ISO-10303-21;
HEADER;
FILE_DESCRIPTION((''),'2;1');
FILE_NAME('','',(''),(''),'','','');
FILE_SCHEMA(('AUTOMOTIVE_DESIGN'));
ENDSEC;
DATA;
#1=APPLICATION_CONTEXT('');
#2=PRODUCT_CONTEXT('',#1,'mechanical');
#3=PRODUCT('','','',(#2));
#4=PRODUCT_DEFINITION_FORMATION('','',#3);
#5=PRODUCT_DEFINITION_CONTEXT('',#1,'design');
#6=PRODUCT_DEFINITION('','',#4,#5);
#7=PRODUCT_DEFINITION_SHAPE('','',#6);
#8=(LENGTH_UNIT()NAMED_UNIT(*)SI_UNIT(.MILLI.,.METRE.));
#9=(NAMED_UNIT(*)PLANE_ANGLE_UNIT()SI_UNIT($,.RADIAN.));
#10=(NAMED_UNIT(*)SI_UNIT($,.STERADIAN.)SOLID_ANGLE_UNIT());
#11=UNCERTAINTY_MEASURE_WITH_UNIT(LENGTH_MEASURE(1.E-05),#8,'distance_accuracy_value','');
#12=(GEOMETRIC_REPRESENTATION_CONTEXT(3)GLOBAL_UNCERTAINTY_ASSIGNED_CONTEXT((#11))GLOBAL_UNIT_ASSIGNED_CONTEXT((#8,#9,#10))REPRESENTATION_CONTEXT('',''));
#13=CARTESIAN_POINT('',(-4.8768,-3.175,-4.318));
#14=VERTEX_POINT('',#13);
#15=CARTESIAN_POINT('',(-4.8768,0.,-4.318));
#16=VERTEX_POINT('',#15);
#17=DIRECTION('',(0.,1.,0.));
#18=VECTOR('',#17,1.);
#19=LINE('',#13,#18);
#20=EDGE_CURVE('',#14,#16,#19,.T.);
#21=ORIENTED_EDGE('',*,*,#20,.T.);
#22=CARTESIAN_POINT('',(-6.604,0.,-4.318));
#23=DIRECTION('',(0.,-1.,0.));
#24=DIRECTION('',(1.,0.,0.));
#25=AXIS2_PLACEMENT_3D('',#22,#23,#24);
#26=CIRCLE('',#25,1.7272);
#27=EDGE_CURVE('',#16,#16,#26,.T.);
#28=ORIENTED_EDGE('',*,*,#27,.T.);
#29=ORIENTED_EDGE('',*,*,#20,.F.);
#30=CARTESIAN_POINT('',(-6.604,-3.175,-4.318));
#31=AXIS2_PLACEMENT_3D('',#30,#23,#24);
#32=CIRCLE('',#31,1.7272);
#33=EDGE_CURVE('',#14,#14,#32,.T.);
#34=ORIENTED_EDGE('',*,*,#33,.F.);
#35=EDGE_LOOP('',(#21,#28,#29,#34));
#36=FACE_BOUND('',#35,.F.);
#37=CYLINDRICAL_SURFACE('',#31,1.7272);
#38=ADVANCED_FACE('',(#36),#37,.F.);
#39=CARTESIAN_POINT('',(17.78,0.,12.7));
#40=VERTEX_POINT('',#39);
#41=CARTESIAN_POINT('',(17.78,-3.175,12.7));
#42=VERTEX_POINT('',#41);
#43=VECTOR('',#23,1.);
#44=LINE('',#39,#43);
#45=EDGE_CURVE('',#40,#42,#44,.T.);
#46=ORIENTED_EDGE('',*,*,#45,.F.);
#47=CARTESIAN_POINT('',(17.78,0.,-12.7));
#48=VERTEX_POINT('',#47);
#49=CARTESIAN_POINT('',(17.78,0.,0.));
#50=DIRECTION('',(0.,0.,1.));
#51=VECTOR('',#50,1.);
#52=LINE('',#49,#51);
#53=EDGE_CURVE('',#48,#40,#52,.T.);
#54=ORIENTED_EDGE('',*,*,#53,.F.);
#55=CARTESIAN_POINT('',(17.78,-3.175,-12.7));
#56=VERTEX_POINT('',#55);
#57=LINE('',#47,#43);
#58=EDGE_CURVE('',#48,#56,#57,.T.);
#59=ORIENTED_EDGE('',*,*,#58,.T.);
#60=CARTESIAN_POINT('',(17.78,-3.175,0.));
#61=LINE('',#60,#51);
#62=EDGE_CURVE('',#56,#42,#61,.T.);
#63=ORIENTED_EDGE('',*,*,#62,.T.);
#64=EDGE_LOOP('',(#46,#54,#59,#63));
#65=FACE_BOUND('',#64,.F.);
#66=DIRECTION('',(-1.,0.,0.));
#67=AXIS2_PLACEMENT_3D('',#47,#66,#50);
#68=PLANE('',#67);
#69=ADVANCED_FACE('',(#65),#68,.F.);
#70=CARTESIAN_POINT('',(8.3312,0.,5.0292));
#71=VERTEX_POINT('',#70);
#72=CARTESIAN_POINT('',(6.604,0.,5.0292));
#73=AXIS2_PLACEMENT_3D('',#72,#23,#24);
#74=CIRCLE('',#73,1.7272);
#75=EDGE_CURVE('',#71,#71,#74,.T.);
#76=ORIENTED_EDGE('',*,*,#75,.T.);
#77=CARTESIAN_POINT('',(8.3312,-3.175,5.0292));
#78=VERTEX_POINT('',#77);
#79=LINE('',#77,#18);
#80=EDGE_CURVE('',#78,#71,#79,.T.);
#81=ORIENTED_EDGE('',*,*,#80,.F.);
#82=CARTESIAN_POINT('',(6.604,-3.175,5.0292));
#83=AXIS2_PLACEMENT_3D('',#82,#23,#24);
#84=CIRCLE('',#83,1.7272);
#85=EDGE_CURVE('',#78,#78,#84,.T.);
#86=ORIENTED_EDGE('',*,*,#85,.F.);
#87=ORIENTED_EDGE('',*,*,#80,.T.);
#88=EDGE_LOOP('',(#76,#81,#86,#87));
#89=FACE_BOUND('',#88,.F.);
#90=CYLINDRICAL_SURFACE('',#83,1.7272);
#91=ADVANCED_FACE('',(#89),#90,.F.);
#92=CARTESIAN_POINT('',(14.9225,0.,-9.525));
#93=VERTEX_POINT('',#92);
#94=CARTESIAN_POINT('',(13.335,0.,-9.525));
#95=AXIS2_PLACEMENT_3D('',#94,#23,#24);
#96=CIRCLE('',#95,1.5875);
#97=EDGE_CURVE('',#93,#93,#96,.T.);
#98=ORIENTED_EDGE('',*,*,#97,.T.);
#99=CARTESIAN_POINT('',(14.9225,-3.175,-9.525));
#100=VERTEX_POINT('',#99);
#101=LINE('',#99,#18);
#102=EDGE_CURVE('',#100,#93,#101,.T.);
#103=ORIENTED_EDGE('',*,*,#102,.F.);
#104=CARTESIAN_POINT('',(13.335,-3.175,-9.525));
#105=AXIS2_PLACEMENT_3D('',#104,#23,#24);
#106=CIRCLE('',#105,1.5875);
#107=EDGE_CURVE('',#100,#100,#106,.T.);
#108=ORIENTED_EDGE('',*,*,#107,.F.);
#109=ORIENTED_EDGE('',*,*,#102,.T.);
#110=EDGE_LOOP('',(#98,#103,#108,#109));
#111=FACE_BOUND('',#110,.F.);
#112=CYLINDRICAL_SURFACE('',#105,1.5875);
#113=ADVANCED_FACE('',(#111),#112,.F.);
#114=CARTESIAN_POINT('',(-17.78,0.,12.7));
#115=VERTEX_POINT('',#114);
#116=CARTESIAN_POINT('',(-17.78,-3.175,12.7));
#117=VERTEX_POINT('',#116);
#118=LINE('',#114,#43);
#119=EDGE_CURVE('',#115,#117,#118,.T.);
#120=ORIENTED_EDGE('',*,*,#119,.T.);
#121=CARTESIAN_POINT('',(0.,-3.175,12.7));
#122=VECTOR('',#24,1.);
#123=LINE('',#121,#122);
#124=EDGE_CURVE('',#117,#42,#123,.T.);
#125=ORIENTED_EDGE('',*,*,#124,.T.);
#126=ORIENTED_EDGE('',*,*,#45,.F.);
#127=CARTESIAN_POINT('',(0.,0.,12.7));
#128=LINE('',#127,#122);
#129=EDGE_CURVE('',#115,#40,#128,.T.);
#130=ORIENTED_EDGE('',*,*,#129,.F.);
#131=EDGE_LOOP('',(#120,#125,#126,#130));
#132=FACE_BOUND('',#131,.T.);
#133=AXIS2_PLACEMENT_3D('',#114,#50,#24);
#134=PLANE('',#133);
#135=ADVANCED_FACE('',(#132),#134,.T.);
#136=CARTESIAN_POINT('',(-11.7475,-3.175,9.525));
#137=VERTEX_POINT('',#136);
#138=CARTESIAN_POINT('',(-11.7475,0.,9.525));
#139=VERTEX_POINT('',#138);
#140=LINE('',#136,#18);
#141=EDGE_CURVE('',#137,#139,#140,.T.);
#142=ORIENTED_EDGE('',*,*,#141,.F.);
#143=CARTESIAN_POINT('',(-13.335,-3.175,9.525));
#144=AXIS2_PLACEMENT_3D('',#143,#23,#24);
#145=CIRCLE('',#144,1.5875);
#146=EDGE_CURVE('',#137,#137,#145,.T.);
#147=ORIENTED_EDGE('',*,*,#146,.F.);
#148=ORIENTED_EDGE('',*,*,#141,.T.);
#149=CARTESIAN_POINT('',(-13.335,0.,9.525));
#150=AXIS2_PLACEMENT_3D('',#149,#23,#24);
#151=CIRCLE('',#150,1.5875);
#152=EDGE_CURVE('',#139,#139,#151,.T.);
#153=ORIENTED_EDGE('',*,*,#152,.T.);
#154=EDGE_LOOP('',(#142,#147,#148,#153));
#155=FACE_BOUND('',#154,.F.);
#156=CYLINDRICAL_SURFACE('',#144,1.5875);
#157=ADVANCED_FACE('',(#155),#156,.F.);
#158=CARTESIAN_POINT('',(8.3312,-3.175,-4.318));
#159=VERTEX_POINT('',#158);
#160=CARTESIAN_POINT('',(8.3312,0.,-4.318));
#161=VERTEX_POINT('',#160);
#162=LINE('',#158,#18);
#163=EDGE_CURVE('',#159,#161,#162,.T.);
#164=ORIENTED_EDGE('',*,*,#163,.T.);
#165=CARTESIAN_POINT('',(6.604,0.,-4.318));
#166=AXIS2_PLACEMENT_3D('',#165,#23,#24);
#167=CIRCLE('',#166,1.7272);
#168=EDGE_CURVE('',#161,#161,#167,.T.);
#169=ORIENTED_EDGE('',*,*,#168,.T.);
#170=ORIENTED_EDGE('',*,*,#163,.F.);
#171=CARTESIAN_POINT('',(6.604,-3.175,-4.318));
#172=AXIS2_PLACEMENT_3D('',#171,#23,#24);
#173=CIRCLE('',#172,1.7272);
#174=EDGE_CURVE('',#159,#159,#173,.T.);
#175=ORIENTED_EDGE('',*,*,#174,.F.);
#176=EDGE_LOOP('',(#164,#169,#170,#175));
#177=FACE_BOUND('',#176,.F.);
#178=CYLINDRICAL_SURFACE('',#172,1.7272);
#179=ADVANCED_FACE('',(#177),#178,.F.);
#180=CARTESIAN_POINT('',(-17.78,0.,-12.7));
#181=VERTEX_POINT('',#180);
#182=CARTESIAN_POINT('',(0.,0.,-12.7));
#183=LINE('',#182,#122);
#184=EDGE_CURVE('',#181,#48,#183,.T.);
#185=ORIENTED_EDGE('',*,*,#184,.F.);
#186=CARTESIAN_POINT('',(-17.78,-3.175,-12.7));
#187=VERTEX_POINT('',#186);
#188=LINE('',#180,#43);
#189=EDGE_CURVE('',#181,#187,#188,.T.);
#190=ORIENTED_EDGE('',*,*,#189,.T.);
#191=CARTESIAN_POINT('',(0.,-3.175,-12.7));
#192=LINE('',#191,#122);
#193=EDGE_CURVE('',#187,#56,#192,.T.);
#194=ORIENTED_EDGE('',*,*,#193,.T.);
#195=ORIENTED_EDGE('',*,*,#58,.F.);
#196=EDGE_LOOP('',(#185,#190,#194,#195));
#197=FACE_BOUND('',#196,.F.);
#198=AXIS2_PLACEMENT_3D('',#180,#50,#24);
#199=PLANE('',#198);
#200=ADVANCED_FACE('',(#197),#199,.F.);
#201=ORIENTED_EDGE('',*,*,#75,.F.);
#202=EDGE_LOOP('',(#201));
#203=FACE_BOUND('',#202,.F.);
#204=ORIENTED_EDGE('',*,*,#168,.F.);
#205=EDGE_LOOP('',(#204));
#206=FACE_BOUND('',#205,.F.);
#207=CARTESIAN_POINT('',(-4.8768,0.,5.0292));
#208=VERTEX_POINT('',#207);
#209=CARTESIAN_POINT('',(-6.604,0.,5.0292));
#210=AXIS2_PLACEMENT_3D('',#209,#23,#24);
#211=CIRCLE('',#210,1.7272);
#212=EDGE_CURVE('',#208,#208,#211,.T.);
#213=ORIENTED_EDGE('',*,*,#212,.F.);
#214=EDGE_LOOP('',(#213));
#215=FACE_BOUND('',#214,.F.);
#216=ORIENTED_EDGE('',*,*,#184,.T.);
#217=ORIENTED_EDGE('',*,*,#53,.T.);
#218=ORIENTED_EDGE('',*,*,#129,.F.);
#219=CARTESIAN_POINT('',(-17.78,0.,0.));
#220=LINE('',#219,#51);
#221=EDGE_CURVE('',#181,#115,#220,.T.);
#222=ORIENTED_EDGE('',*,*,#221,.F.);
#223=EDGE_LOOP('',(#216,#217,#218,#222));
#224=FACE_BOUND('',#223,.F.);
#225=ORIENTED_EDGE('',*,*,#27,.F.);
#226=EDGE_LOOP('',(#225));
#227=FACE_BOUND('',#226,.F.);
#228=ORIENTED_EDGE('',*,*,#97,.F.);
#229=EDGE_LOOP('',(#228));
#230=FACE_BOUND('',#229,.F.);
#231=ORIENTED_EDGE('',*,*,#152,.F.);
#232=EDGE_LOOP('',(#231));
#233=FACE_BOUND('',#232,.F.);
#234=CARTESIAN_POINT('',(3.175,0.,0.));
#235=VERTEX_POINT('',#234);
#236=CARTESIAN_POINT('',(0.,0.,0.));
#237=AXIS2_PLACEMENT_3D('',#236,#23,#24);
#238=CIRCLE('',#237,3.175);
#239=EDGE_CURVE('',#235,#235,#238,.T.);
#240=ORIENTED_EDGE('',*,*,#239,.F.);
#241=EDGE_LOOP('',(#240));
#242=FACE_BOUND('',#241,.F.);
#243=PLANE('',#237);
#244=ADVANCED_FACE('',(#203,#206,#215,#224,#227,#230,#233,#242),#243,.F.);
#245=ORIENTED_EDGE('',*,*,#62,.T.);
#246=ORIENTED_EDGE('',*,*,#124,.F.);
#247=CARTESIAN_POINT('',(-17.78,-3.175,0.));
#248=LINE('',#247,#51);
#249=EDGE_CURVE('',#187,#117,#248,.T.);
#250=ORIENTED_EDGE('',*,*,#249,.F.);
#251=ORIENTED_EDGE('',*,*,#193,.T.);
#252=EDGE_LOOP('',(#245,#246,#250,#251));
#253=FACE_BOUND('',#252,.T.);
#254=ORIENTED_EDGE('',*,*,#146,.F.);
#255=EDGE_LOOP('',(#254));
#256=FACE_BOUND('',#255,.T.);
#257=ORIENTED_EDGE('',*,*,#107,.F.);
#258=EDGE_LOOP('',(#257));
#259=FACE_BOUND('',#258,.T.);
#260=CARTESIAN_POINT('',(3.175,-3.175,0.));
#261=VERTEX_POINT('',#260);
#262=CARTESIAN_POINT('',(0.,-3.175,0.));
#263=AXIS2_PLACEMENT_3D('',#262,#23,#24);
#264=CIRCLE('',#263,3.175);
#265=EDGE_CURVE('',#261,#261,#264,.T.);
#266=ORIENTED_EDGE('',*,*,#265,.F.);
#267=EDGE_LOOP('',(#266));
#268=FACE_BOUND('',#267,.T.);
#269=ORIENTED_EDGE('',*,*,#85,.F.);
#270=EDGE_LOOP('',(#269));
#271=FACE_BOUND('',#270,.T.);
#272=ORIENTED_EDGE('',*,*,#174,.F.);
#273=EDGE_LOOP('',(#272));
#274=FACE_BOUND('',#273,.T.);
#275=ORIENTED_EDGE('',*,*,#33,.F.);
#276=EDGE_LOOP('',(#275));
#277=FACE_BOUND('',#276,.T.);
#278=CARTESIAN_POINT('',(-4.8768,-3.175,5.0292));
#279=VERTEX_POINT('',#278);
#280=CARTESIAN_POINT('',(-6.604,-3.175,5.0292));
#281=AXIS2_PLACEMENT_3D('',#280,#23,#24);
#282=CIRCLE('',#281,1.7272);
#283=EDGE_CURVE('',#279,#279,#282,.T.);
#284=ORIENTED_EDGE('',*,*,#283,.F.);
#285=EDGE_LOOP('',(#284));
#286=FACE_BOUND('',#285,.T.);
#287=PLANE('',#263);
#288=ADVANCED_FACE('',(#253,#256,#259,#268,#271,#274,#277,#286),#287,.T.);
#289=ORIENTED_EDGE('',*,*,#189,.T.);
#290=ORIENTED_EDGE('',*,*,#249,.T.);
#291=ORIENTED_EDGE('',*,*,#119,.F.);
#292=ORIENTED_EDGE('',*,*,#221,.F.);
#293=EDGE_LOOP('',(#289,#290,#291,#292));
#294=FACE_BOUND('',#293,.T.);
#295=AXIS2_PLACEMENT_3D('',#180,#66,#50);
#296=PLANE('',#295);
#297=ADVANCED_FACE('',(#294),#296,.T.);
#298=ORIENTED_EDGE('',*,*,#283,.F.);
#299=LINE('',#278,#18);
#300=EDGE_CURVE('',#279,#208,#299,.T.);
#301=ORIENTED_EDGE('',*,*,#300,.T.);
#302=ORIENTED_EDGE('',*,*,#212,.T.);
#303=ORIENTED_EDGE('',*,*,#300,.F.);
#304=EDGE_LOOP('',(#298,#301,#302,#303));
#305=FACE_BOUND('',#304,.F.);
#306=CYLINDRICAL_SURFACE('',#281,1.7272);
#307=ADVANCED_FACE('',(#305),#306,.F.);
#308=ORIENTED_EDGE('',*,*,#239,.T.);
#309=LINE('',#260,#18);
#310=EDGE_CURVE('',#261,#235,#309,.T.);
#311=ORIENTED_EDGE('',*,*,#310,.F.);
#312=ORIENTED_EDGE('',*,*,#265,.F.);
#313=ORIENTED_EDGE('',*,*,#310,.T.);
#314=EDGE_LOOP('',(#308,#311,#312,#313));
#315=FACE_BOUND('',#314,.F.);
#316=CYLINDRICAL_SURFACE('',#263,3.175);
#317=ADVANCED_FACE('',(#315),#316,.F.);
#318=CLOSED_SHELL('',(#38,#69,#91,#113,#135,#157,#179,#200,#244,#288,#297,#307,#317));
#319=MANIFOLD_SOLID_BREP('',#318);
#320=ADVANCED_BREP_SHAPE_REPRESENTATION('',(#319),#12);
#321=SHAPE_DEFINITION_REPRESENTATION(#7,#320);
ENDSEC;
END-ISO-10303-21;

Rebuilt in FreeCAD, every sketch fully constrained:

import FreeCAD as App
import Part
import Sketcher

V = App.Vector
Q = App.Units.Quantity

doc = App.newDocument("Part")
params = doc.addObject("Spreadsheet::Sheet", "Params")
for row, (alias, value) in enumerate([
    ("sketch1_height", "1 in"),
    ("sketch1_width", "1.4 in"),
    ("pad1_length", "0.125 in"),
    ("sketch2_diameter", "0.25 in"),
    ("sketch2_diameter2", "0.136 in"),
    ("sketch3_diameter", "0.125 in"),
], start=1):
    params.set(f"A{row}", alias)
    params.set(f"B{row}", "=" + value)
    params.setAlias(f"B{row}", alias)

body = doc.addObject("PartDesign::Body", "Body")

# Sketch on XZ plane
sketch1 = doc.addObject("Sketcher::SketchObject", "Sketch")
body.addObject(sketch1)
sketch1.AttachmentSupport = (doc.XZ_Plane, [""])
sketch1.MapMode = "FlatFace"
sketch1.addGeometry(Part.LineSegment(V(-18, 13, 0), V(-18, -13, 0)), False)
sketch1.addGeometry(Part.LineSegment(V(-18, -13, 0), V(18, -13, 0)), False)
sketch1.addGeometry(Part.LineSegment(V(18, -13, 0), V(18, 13, 0)), False)
sketch1.addGeometry(Part.LineSegment(V(18, 13, 0), V(-18, 13, 0)), False)
sketch1.addConstraint(Sketcher.Constraint("Coincident", 0, 2, 1, 1))
sketch1.addConstraint(Sketcher.Constraint("Coincident", 1, 2, 2, 1))
sketch1.addConstraint(Sketcher.Constraint("Coincident", 2, 2, 3, 1))
sketch1.addConstraint(Sketcher.Constraint("Coincident", 3, 2, 0, 1))
sketch1.addConstraint(Sketcher.Constraint("Vertical", 0))
sketch1.addConstraint(Sketcher.Constraint("Horizontal", 1))
sketch1.addConstraint(Sketcher.Constraint("Vertical", 2))
sketch1.addConstraint(Sketcher.Constraint("Horizontal", 3))
sketch1.addConstraint(Sketcher.Constraint("Symmetric", 0, 2, 2, 2, -1, 1))
sketch1.addConstraint(Sketcher.Constraint("DistanceY", 0, 2, 0, 1, Q("1 in")))
sketch1.addConstraint(Sketcher.Constraint("DistanceX", 1, 1, 1, 2, Q("1.4 in")))
sketch1.setExpression("Constraints[9]", "Params.sketch1_height")
sketch1.setExpression("Constraints[10]", "Params.sketch1_width")
pad1 = doc.addObject("PartDesign::Pad", "Pad")
body.addObject(pad1)
pad1.Profile = sketch1
pad1.setExpression("Length", "Params.pad1_length")

# Sketch on XZ plane
sketch2 = doc.addObject("Sketcher::SketchObject", "Sketch001")
body.addObject(sketch2)
sketch2.AttachmentSupport = (doc.XZ_Plane, [""])
sketch2.MapMode = "FlatFace"
sketch2.AttachmentOffset = App.Placement(V(0, 0, 0.125 * 25.4), App.Rotation())
sketch2.addGeometry(Part.Circle(V(0, 0, 0), V(0, 0, 1), 3.2), False)
sketch2.addGeometry(Part.Circle(V(6.6, 5, 0), V(0, 0, 1), 1.7), False)
sketch2.addGeometry(Part.Circle(V(6.6, -4.3, 0), V(0, 0, 1), 1.7), False)
sketch2.addGeometry(Part.Circle(V(-6.6, -4.3, 0), V(0, 0, 1), 1.7), False)
sketch2.addGeometry(Part.Circle(V(-6.6, 5, 0), V(0, 0, 1), 1.7), False)
sketch2.addConstraint(Sketcher.Constraint("Coincident", 0, 3, -1, 1))
sketch2.addConstraint(Sketcher.Constraint("Equal", 1, 2))
sketch2.addConstraint(Sketcher.Constraint("Equal", 2, 3))
sketch2.addConstraint(Sketcher.Constraint("Equal", 3, 4))
sketch2.addConstraint(Sketcher.Constraint("Symmetric", 2, 3, 3, 3, -2))
sketch2.addConstraint(Sketcher.Constraint("Symmetric", 1, 3, 4, 3, -2))
sketch2.addConstraint(Sketcher.Constraint("Vertical", 1, 3, 2, 3))
sketch2.addConstraint(Sketcher.Constraint("Diameter", 0, Q("0.25 in")))
sketch2.addConstraint(Sketcher.Constraint("Diameter", 1, Q("0.136 in")))
sketch2.addConstraint(Sketcher.Constraint("DistanceX", -1, 1, 1, 3, Q("0.26 in")))
sketch2.addConstraint(Sketcher.Constraint("DistanceY", 2, 3, -1, 1, Q("0.17 in")))
sketch2.addConstraint(Sketcher.Constraint("DistanceY", -1, 1, 1, 3, Q("0.198 in")))
sketch2.setExpression("Constraints[7]", "Params.sketch2_diameter")
sketch2.setExpression("Constraints[8]", "Params.sketch2_diameter2")
pocket1 = doc.addObject("PartDesign::Pocket", "Pocket")
body.addObject(pocket1)
pocket1.Profile = sketch2
pocket1.Type = "ThroughAll"

# Sketch on XZ plane
sketch3 = doc.addObject("Sketcher::SketchObject", "Sketch002")
body.addObject(sketch3)
sketch3.AttachmentSupport = (doc.XZ_Plane, [""])
sketch3.MapMode = "FlatFace"
sketch3.AttachmentOffset = App.Placement(V(0, 0, 0.125 * 25.4), App.Rotation())
sketch3.addGeometry(Part.Circle(V(-13.3, 9.5, 0), V(0, 0, 1), 1.6), False)
sketch3.addGeometry(Part.Circle(V(13.3, -9.5, 0), V(0, 0, 1), 1.6), False)
sketch3.addConstraint(Sketcher.Constraint("Equal", 0, 1))
sketch3.addConstraint(Sketcher.Constraint("Symmetric", 0, 3, 1, 3, -1, 1))
sketch3.addConstraint(Sketcher.Constraint("Diameter", 0, Q("0.125 in")))
sketch3.addConstraint(Sketcher.Constraint("DistanceX", 0, 3, 1, 3, Q("1.05 in")))
sketch3.addConstraint(Sketcher.Constraint("DistanceY", 1, 3, 0, 3, Q("0.75 in")))
sketch3.setExpression("Constraints[2]", "Params.sketch3_diameter")
pocket2 = doc.addObject("PartDesign::Pocket", "Pocket001")
body.addObject(pocket2)
pocket2.Profile = sketch3
pocket2.Type = "ThroughAll"

doc.recompute()
